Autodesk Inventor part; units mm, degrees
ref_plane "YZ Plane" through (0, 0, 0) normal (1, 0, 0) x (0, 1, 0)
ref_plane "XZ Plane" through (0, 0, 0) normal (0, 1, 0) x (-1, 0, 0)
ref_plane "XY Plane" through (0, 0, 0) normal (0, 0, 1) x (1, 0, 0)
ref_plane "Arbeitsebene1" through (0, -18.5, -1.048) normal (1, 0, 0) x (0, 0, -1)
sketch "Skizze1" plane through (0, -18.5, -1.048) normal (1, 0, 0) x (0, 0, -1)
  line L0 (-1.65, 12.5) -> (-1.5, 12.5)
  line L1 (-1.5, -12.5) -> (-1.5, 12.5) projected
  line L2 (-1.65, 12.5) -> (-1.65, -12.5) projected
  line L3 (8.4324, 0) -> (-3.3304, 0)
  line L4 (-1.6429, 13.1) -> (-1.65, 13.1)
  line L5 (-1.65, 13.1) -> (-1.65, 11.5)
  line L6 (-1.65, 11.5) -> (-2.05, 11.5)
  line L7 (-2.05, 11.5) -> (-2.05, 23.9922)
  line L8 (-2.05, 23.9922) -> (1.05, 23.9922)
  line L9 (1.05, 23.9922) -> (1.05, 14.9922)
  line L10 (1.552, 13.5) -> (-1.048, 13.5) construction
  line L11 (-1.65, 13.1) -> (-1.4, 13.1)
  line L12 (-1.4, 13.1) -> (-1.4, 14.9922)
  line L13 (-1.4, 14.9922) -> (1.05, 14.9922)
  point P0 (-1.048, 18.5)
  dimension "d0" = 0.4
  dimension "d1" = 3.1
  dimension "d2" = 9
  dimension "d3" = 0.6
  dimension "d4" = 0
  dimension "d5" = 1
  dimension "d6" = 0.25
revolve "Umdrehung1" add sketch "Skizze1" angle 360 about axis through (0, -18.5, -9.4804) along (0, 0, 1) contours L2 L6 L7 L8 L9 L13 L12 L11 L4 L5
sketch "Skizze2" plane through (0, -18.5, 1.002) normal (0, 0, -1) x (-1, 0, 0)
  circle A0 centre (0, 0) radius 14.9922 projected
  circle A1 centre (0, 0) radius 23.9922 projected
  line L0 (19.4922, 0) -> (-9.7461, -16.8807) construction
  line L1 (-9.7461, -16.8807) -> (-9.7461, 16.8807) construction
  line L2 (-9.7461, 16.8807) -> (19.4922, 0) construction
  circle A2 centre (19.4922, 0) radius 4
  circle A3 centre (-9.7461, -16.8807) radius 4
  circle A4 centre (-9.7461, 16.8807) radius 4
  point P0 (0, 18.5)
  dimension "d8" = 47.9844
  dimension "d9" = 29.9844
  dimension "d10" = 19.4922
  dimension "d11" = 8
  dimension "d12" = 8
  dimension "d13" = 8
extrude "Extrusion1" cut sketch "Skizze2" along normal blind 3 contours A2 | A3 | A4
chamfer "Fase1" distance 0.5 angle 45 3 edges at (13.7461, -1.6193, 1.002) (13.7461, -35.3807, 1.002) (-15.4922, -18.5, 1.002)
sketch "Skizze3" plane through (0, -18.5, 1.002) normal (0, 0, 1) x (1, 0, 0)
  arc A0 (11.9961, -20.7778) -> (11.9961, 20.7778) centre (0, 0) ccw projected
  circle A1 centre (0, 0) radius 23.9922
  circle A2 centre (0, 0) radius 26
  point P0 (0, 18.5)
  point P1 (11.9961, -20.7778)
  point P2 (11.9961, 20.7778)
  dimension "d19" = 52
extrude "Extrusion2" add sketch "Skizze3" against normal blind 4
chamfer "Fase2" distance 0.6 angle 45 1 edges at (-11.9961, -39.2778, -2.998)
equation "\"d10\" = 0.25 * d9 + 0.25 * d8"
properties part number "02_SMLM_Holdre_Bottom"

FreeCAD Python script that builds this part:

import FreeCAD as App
import Part
import Sketcher


def edges_at(feature, points):
    """Names of the edges that pass closest to the given points."""
    edges = feature.Shape.Edges
    near = lambda p: min(range(len(edges)), key=lambda i: edges[i].distToShape(Part.Vertex(*p))[0])
    return sorted({f"Edge{near(p) + 1}" for p in points})


def add_polygon(sketch, points):
    """Adds a closed chain of lines whose ends are joined by coincident constraints."""
    first, n = sketch.GeometryCount, len(points)
    for a, b in zip(points, points[1:] + points[:1]):
        sketch.addGeometry(Part.LineSegment(App.Vector(*a, 0), App.Vector(*b, 0)), False)
    for i in range(n):
        sketch.addConstraint(Sketcher.Constraint("Coincident", first + i, 2, first + (i + 1) % n, 1))

doc = App.newDocument("Part")
body = doc.addObject("PartDesign::Body", "Body")

sketch1 = body.newObject("Sketcher::SketchObject", "Sketch")
sketch1.AttachmentSupport = (doc.getObject("YZ_Plane"), [""])
sketch1.MapMode = "FlatFace"
add_polygon(sketch1, [(-7, 0.6), (-5.4, 0.6), (-5.4, 0.35), (-3.51, 0.35), (-3.51, -2.1), (5.49, -2.1), (5.49, 1), (-7, 1)])
sketch1.addGeometry(Part.LineSegment(App.Vector(-18.5, -2.1, 0), App.Vector(-18.5, 1, 0)), True)
sketch1.addConstraint([
    Sketcher.Constraint("Horizontal", 0),
    Sketcher.Constraint("Vertical", 1),
    Sketcher.Constraint("Horizontal", 2),
    Sketcher.Constraint("Vertical", 3),
    Sketcher.Constraint("Horizontal", 4),
    Sketcher.Constraint("Vertical", 5),
    Sketcher.Constraint("Horizontal", 6),
    Sketcher.Constraint("Vertical", 7),
    Sketcher.Constraint("Vertical", 8),
    Sketcher.Constraint("Horizontal", 4, 2, 8, 1),
    Sketcher.Constraint("Horizontal", 6, 2, 8, 2),
    Sketcher.Constraint("DistanceX", 4, 1, 4, 2, 9.0),
    Sketcher.Constraint("DistanceY", 5, 1, 5, 2, 3.1),
    Sketcher.Constraint("DistanceY", 7, 2, 7, 1, 0.4),
    Sketcher.Constraint("DistanceY", 1, 2, 1, 1, 0.25),
    Sketcher.Constraint("DistanceX", 0, 1, 0, 2, 1.6),
    Sketcher.Constraint("DistanceX", 6, 2, -1, 1, 7.0),
    Sketcher.Constraint("DistanceX", 8, 1, -1, 1, 18.5),
    Sketcher.Constraint("DistanceX", 2, 1, 2, 2, 1.8922),
    Sketcher.Constraint("DistanceY", -1, 1, 0, 2, 0.602),
])
revolution = body.newObject("PartDesign::Revolution", "Revolution")
revolution.Profile = sketch1
revolution.ReferenceAxis = (sketch1, ["Axis0"])
revolution.Angle = 360

sketch2 = body.newObject("Sketcher::SketchObject", "Sketch001")
sketch2.AttachmentSupport = (doc.getObject("XY_Plane"), [""])
sketch2.MapMode = "FlatFace"
sketch2.AttachmentOffset = App.Placement(App.Vector(0, 0, 1.002), App.Rotation())
sketch2.addGeometry([
    Part.Circle(App.Vector(-19.5, -18.5, 0), App.Vector(0, 0, 1), 4),
    Part.Circle(App.Vector(9.7, -35.4, 0), App.Vector(0, 0, 1), 4),
    Part.Circle(App.Vector(9.7, -1.6, 0), App.Vector(0, 0, 1), 4),
], False)
sketch2.addConstraint([
    Sketcher.Constraint("Equal", 0, 1),
    Sketcher.Constraint("Equal", 1, 2),
    Sketcher.Constraint("Vertical", 1, 3, 2, 3),
    Sketcher.Constraint("Diameter", 0, 8.0),
    Sketcher.Constraint("DistanceX", 0, 3, -1, 1, 19.4922),
    Sketcher.Constraint("DistanceY", 0, 3, -1, 1, 18.5),
    Sketcher.Constraint("DistanceX", -1, 1, 1, 3, 9.746),
    Sketcher.Constraint("DistanceY", 1, 3, -1, 1, 35.3807),
    Sketcher.Constraint("DistanceY", 2, 3, -1, 1, 1.6193),
])
pocket1 = body.newObject("PartDesign::Pocket", "Pocket")
pocket1.Profile = sketch2
pocket1.Length = 3
doc.recompute()

chamfer = body.newObject("PartDesign::Chamfer", "Chamfer")
chamfer.Base = (pocket1, edges_at(pocket1, [(13.746, -1.619, 1.002), (13.746, -35.381, 1.002), (-15.492, -18.5, 1.002)]))
chamfer.Size = 0.5

sketch3 = body.newObject("Sketcher::SketchObject", "Sketch002")
sketch3.AttachmentSupport = (doc.getObject("XY_Plane"), [""])
sketch3.MapMode = "FlatFace"
sketch3.AttachmentOffset = App.Placement(App.Vector(0, 0, 1.002), App.Rotation())
sketch3.addGeometry([
    Part.Circle(App.Vector(0, -18, 0), App.Vector(0, 0, 1), 26),
    Part.Circle(App.Vector(0, -18, 0), App.Vector(0, 0, 1), 24),
], False)
sketch3.addConstraint([
    Sketcher.Constraint("Coincident", 1, 3, 0, 3),
    Sketcher.Constraint("PointOnObject", 0, 3, -2),
    Sketcher.Constraint("Diameter", 0, 52.0),
    Sketcher.Constraint("Diameter", 1, 47.9844),
    Sketcher.Constraint("DistanceY", 0, 3, -1, 1, 18.5),
])
pad1 = body.newObject("PartDesign::Pad", "Pad")
pad1.Profile = sketch3
pad1.Length = 4
pad1.Reversed = True
doc.recompute()

chamfer2 = body.newObject("PartDesign::Chamfer", "Chamfer001")
chamfer2.Base = (pad1, edges_at(pad1, [(-11.996, -39.278, -2.998)]))
chamfer2.Size = 0.6

doc.recompute()
